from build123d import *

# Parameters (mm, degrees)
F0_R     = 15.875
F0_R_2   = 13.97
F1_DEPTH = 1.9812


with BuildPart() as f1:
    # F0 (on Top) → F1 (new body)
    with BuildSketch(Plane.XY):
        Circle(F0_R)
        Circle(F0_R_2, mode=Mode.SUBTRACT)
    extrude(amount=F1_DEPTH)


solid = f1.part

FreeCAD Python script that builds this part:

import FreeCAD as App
import Part
import Sketcher
Q = App.Units.Quantity

doc = App.newDocument("Part")
body = doc.addObject("PartDesign::Body", "Body")

sketch1 = body.newObject("Sketcher::SketchObject", "Sketch")
sketch1.AttachmentSupport = (doc.getObject("XY_Plane"), [""])
sketch1.MapMode = "FlatFace"
sketch1.addGeometry(Part.Circle(App.Vector(0, 0, 0), App.Vector(0, 0, 1), 15.875), False)
sketch1.addGeometry(Part.Circle(App.Vector(0, 0, 0), App.Vector(0, 0, 1), 13.97), False)
sketch1.addConstraint(Sketcher.Constraint("Coincident", 0, 3, -1, 1))
sketch1.addConstraint(Sketcher.Constraint("Coincident", 1, 3, -1, 1))
sketch1.addConstraint(Sketcher.Constraint("Diameter", 1, Q("1.1 in")))
sketch1.addConstraint(Sketcher.Constraint("Diameter", 0, Q("1.25 in")))
pad1 = body.newObject("PartDesign::Pad", "Pad")
pad1.Profile = sketch1
pad1.Length = Q("0.078 in")

doc.recompute()
